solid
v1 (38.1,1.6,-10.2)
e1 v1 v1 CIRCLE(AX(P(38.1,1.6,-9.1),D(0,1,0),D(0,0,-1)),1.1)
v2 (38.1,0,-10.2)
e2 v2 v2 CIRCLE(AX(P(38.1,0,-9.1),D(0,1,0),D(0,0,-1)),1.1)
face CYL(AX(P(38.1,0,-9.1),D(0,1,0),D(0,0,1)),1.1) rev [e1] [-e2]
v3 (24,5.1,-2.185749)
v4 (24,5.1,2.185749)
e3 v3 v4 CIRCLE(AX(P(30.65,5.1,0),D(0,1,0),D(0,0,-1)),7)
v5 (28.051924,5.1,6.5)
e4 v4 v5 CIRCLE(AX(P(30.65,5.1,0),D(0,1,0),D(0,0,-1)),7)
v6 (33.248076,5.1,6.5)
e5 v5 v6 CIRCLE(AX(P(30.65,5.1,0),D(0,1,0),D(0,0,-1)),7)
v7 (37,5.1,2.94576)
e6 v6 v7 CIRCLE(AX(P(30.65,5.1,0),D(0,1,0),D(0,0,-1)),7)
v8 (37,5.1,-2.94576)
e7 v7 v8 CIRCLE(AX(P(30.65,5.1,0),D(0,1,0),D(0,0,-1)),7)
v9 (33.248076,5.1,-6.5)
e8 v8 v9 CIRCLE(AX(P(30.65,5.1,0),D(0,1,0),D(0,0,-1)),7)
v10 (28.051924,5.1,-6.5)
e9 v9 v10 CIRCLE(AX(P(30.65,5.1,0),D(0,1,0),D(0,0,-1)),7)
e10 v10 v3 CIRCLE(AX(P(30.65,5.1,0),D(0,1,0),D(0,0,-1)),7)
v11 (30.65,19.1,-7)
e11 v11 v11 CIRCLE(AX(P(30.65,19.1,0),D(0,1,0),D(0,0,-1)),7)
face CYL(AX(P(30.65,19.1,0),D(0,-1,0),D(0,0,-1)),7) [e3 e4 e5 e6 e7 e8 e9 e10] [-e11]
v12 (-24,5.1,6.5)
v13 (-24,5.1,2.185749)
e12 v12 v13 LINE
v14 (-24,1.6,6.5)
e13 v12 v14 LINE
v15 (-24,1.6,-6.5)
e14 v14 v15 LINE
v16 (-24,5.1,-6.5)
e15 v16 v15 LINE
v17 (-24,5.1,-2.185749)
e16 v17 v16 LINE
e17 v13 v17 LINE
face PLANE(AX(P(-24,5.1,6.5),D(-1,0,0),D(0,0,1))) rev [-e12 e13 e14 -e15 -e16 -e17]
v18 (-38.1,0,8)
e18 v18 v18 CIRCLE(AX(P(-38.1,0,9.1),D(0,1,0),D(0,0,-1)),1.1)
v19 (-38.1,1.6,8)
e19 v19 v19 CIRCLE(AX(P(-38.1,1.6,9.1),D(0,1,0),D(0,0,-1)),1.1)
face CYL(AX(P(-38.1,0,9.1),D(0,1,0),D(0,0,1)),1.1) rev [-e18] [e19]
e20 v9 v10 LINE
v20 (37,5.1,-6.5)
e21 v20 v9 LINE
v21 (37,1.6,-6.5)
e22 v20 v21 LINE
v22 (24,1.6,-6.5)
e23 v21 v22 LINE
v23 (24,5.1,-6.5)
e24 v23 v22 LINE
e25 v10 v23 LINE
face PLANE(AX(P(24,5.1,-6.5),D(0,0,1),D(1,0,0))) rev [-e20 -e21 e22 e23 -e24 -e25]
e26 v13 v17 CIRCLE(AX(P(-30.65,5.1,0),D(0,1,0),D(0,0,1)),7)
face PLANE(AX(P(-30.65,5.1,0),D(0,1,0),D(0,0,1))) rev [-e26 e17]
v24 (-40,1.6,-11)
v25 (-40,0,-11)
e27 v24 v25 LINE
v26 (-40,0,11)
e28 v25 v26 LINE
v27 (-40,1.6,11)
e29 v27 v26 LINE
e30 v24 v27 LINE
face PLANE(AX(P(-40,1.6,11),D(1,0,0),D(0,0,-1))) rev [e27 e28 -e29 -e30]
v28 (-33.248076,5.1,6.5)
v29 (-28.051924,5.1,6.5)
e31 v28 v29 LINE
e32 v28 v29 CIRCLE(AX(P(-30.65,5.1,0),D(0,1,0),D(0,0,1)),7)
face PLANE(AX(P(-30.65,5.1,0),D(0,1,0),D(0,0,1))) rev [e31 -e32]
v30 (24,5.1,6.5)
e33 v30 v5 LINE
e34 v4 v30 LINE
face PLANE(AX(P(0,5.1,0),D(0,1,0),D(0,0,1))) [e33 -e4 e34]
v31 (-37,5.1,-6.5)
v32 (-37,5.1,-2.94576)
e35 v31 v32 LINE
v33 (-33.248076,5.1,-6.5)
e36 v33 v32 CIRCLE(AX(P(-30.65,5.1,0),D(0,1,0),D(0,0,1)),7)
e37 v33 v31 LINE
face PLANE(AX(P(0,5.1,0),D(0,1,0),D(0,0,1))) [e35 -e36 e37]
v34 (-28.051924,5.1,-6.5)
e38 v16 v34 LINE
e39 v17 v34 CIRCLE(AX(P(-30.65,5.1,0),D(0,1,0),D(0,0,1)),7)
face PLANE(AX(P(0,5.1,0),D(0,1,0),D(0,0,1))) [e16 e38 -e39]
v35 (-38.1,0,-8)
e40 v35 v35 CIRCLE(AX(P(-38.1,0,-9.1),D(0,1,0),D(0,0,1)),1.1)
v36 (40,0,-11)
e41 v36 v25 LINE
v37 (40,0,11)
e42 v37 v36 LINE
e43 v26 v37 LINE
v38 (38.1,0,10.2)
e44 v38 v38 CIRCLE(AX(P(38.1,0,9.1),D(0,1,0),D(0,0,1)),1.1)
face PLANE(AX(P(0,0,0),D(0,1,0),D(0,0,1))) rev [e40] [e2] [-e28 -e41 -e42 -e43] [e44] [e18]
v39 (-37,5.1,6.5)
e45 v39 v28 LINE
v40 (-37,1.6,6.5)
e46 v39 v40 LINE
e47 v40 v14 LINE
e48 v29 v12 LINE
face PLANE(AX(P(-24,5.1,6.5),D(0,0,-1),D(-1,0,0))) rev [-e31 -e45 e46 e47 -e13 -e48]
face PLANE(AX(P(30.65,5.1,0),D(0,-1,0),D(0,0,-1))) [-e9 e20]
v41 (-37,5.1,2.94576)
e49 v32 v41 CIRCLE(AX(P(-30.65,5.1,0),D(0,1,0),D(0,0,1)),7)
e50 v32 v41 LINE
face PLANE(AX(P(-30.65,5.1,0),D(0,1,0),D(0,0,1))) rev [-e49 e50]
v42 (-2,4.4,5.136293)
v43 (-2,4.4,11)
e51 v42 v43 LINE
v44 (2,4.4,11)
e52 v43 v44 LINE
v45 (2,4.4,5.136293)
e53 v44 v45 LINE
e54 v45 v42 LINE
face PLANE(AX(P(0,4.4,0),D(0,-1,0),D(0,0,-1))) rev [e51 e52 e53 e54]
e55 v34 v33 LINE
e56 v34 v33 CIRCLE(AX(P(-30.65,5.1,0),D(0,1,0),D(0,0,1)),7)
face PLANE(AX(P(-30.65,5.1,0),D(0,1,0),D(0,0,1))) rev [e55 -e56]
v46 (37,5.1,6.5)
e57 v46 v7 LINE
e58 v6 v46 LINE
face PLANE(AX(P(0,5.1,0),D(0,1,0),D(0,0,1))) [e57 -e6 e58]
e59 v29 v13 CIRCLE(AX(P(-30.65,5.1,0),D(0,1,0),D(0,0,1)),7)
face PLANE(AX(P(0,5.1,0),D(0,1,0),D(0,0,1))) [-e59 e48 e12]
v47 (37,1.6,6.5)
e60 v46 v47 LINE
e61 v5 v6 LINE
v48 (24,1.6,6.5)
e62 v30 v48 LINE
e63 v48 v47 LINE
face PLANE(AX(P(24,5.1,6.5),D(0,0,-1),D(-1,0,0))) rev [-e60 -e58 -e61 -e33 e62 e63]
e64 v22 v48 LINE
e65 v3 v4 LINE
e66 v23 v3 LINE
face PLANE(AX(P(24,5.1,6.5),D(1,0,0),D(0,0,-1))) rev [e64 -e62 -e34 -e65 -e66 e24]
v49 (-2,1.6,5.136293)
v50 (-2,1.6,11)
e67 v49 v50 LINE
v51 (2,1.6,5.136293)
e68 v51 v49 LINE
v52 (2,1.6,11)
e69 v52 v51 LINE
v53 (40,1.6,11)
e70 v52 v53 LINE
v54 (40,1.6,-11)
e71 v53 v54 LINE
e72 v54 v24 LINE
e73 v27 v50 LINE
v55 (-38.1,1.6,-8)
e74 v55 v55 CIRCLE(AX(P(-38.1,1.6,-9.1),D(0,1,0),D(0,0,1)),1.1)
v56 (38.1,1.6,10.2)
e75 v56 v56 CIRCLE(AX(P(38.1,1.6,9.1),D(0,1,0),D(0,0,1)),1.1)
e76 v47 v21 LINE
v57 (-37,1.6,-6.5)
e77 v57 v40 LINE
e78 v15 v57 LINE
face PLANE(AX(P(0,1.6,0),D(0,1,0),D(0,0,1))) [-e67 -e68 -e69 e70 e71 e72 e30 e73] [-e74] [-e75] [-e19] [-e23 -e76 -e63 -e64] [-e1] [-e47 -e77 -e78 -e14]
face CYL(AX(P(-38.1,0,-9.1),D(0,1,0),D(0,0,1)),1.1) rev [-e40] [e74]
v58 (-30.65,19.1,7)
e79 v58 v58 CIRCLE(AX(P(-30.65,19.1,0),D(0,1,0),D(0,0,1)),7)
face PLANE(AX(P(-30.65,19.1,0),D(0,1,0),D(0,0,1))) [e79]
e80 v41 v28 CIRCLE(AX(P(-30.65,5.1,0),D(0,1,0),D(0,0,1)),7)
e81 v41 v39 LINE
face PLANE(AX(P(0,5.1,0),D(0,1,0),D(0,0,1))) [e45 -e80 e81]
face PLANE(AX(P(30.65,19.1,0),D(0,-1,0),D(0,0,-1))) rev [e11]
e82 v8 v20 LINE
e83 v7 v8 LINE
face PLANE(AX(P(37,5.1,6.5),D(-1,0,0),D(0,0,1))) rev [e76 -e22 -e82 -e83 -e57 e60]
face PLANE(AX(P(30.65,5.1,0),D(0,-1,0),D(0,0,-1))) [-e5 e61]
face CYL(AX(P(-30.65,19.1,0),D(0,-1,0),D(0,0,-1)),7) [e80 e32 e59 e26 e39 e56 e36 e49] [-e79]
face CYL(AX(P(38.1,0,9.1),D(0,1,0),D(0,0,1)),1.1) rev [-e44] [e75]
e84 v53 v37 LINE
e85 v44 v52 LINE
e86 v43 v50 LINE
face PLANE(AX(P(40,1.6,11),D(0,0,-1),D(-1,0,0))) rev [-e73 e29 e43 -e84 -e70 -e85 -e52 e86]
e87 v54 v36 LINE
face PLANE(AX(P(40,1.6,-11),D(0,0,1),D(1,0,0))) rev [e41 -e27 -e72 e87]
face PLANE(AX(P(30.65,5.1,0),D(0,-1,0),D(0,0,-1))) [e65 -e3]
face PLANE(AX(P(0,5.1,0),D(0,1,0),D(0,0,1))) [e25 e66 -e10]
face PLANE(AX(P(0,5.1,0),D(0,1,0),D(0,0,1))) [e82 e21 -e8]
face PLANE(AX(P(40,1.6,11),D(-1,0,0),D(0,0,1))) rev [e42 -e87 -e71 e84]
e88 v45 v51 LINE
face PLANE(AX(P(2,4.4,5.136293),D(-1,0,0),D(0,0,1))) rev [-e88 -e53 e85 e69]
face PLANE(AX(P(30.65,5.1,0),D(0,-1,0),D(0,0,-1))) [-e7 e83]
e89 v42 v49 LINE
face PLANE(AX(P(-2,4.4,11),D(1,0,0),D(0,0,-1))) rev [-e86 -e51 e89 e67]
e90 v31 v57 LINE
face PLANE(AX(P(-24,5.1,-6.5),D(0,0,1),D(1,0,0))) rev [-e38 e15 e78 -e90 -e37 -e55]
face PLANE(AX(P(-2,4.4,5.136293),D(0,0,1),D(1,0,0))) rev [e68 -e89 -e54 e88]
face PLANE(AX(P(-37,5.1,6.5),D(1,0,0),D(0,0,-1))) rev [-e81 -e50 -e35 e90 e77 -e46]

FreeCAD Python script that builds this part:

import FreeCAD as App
import Part
import Sketcher
from FreeCAD import Vector


def add_polygon(sketch, points):
    """Adds a closed chain of lines whose ends are joined by coincident constraints."""
    first, n = sketch.GeometryCount, len(points)
    for a, b in zip(points, points[1:] + points[:1]):
        sketch.addGeometry(Part.LineSegment(App.Vector(*a, 0), App.Vector(*b, 0)), False)
    for i in range(n):
        sketch.addConstraint(Sketcher.Constraint("Coincident", first + i, 2, first + (i + 1) % n, 1))

doc = App.newDocument("Part")
body = doc.addObject("PartDesign::Body", "Body")

# Sketch on XZ plane
sketch1 = body.newObject("Sketcher::SketchObject", "Sketch")
sketch1.AttachmentSupport = (doc.getObject("XZ_Plane"), [""])
sketch1.MapMode = "FlatFace"
add_polygon(sketch1, [(-40, -11), (-40, 11), (40, 11), (40, -11)])  # lines 0-3
sketch1.addConstraint([
    Sketcher.Constraint("Vertical", 0),
    Sketcher.Constraint("Horizontal", 1),
    Sketcher.Constraint("Vertical", 2),
    Sketcher.Constraint("Horizontal", 3),
    Sketcher.Constraint("Symmetric", 0, 2, 2, 2, -1, 1),
    Sketcher.Constraint("DistanceX", 1, 1, 1, 2, 80.0),
    Sketcher.Constraint("DistanceY", 0, 1, 0, 2, 22.0),
])
pad1 = body.newObject("PartDesign::Pad", "Pad")
pad1.Profile = sketch1
pad1.Length = 1.6
pad1.Reversed = True

# Sketch on XZ plane
sketch2 = body.newObject("Sketcher::SketchObject", "Sketch001")
sketch2.AttachmentSupport = (doc.getObject("XZ_Plane"), [""])
sketch2.MapMode = "FlatFace"
sketch2.AttachmentOffset = App.Placement(Vector(0, 0, -1.6), App.Rotation())
add_polygon(sketch2, [(24, -6.5), (24, 6.5), (37, 6.5), (37, -6.5)])  # lines 0-3
add_polygon(sketch2, [(-37, -6.5), (-37, 6.5), (-24, 6.5), (-24, -6.5)])  # lines 4-7
sketch2.addConstraint([
    Sketcher.Constraint("Vertical", 0),
    Sketcher.Constraint("Horizontal", 1),
    Sketcher.Constraint("Vertical", 2),
    Sketcher.Constraint("Horizontal", 3),
    Sketcher.Constraint("Vertical", 4),
    Sketcher.Constraint("Horizontal", 5),
    Sketcher.Constraint("Vertical", 6),
    Sketcher.Constraint("Horizontal", 7),
    Sketcher.Constraint("Symmetric", 2, 2, 4, 2, -1, 1),
    Sketcher.Constraint("Symmetric", 0, 2, 6, 2, -1, 1),
    Sketcher.Constraint("Horizontal", 1, 2, 4, 2),
    Sketcher.Constraint("Equal", 7, 0),
    Sketcher.Constraint("DistanceX", 1, 1, 1, 2, 13.0),
    Sketcher.Constraint("DistanceX", -1, 1, 0, 2, 24.0),
])
pad2 = body.newObject("PartDesign::Pad", "Pad001")
pad2.Profile = sketch2
pad2.Length = 3.5
pad2.Reversed = True

# Sketch on XZ plane
sketch3 = body.newObject("Sketcher::SketchObject", "Sketch002")
sketch3.AttachmentSupport = (doc.getObject("XZ_Plane"), [""])
sketch3.MapMode = "FlatFace"
sketch3.AttachmentOffset = App.Placement(Vector(0, 0, -5.1), App.Rotation())
sketch3.addGeometry([
    Part.Circle(Vector(-30.65, 0, 0), Vector(0, 0, 1), 7),
    Part.Circle(Vector(30.65, 0, 0), Vector(0, 0, 1), 7),
], False)
sketch3.addConstraint([
    Sketcher.Constraint("Equal", 0, 1),
    Sketcher.Constraint("Symmetric", 0, 3, 1, 3, -1, 1),
    Sketcher.Constraint("PointOnObject", 0, 3, -1),
    Sketcher.Constraint("Diameter", 0, 14.0),
    Sketcher.Constraint("DistanceX", 0, 3, 1, 3, 61.3),
])
pad3 = body.newObject("PartDesign::Pad", "Pad002")
pad3.Profile = sketch3
pad3.Length = 14
pad3.Reversed = True

# Sketch on XZ plane
sketch4 = body.newObject("Sketcher::SketchObject", "Sketch003")
sketch4.AttachmentSupport = (doc.getObject("XZ_Plane"), [""])
sketch4.MapMode = "FlatFace"
sketch4.AttachmentOffset = App.Placement(Vector(0, 0, -1.6), App.Rotation())
sketch4.addGeometry([
    Part.Circle(Vector(-38.1, -9.1, 0), Vector(0, 0, 1), 1.1),
    Part.Circle(Vector(-38.1, 9.1, 0), Vector(0, 0, 1), 1.1),
    Part.Circle(Vector(38.1, 9.1, 0), Vector(0, 0, 1), 1.1),
    Part.Circle(Vector(38.1, -9.1, 0), Vector(0, 0, 1), 1.1),
], False)
sketch4.addConstraint([
    Sketcher.Constraint("Equal", 0, 1),
    Sketcher.Constraint("Equal", 1, 2),
    Sketcher.Constraint("Equal", 2, 3),
    Sketcher.Constraint("Symmetric", 0, 3, 2, 3, -1, 1),
    Sketcher.Constraint("Symmetric", 1, 3, 3, 3, -1, 1),
    Sketcher.Constraint("Symmetric", 1, 3, 2, 3, -2),
    Sketcher.Constraint("Diameter", 0, 2.2),
    Sketcher.Constraint("DistanceX", 0, 3, -1, 1, 38.1),
    Sketcher.Constraint("DistanceY", 0, 3, -1, 1, 9.1),
])
pocket1 = body.newObject("PartDesign::Pocket", "Pocket")
pocket1.Profile = sketch4
pocket1.Type = "ThroughAll"
pocket1.Reversed = True

# Sketch on XZ plane
sketch5 = body.newObject("Sketcher::SketchObject", "Sketch004")
sketch5.AttachmentSupport = (doc.getObject("XZ_Plane"), [""])
sketch5.MapMode = "FlatFace"
sketch5.AttachmentOffset = App.Placement(Vector(0, 0, -1.6), App.Rotation())
add_polygon(sketch5, [(-2, 11), (2, 11), (2, 5.136293), (-2, 5.136293)])  # lines 0-3
sketch5.addConstraint([
    Sketcher.Constraint("Horizontal", 0),
    Sketcher.Constraint("Vertical", 1),
    Sketcher.Constraint("Horizontal", 2),
    Sketcher.Constraint("Vertical", 3),
    Sketcher.Constraint("DistanceX", 0, 1, 0, 2, 4.0),
    Sketcher.Constraint("DistanceX", -1, 1, 0, 2, 2.0),
    Sketcher.Constraint("DistanceY", -1, 1, 0, 2, 11.0),
    Sketcher.Constraint("DistanceY", 1, 2, 1, 1, 5.863707),
])
pad4 = body.newObject("PartDesign::Pad", "Pad003")
pad4.Profile = sketch5
pad4.Length = 2.8
pad4.Reversed = True

doc.recompute()
